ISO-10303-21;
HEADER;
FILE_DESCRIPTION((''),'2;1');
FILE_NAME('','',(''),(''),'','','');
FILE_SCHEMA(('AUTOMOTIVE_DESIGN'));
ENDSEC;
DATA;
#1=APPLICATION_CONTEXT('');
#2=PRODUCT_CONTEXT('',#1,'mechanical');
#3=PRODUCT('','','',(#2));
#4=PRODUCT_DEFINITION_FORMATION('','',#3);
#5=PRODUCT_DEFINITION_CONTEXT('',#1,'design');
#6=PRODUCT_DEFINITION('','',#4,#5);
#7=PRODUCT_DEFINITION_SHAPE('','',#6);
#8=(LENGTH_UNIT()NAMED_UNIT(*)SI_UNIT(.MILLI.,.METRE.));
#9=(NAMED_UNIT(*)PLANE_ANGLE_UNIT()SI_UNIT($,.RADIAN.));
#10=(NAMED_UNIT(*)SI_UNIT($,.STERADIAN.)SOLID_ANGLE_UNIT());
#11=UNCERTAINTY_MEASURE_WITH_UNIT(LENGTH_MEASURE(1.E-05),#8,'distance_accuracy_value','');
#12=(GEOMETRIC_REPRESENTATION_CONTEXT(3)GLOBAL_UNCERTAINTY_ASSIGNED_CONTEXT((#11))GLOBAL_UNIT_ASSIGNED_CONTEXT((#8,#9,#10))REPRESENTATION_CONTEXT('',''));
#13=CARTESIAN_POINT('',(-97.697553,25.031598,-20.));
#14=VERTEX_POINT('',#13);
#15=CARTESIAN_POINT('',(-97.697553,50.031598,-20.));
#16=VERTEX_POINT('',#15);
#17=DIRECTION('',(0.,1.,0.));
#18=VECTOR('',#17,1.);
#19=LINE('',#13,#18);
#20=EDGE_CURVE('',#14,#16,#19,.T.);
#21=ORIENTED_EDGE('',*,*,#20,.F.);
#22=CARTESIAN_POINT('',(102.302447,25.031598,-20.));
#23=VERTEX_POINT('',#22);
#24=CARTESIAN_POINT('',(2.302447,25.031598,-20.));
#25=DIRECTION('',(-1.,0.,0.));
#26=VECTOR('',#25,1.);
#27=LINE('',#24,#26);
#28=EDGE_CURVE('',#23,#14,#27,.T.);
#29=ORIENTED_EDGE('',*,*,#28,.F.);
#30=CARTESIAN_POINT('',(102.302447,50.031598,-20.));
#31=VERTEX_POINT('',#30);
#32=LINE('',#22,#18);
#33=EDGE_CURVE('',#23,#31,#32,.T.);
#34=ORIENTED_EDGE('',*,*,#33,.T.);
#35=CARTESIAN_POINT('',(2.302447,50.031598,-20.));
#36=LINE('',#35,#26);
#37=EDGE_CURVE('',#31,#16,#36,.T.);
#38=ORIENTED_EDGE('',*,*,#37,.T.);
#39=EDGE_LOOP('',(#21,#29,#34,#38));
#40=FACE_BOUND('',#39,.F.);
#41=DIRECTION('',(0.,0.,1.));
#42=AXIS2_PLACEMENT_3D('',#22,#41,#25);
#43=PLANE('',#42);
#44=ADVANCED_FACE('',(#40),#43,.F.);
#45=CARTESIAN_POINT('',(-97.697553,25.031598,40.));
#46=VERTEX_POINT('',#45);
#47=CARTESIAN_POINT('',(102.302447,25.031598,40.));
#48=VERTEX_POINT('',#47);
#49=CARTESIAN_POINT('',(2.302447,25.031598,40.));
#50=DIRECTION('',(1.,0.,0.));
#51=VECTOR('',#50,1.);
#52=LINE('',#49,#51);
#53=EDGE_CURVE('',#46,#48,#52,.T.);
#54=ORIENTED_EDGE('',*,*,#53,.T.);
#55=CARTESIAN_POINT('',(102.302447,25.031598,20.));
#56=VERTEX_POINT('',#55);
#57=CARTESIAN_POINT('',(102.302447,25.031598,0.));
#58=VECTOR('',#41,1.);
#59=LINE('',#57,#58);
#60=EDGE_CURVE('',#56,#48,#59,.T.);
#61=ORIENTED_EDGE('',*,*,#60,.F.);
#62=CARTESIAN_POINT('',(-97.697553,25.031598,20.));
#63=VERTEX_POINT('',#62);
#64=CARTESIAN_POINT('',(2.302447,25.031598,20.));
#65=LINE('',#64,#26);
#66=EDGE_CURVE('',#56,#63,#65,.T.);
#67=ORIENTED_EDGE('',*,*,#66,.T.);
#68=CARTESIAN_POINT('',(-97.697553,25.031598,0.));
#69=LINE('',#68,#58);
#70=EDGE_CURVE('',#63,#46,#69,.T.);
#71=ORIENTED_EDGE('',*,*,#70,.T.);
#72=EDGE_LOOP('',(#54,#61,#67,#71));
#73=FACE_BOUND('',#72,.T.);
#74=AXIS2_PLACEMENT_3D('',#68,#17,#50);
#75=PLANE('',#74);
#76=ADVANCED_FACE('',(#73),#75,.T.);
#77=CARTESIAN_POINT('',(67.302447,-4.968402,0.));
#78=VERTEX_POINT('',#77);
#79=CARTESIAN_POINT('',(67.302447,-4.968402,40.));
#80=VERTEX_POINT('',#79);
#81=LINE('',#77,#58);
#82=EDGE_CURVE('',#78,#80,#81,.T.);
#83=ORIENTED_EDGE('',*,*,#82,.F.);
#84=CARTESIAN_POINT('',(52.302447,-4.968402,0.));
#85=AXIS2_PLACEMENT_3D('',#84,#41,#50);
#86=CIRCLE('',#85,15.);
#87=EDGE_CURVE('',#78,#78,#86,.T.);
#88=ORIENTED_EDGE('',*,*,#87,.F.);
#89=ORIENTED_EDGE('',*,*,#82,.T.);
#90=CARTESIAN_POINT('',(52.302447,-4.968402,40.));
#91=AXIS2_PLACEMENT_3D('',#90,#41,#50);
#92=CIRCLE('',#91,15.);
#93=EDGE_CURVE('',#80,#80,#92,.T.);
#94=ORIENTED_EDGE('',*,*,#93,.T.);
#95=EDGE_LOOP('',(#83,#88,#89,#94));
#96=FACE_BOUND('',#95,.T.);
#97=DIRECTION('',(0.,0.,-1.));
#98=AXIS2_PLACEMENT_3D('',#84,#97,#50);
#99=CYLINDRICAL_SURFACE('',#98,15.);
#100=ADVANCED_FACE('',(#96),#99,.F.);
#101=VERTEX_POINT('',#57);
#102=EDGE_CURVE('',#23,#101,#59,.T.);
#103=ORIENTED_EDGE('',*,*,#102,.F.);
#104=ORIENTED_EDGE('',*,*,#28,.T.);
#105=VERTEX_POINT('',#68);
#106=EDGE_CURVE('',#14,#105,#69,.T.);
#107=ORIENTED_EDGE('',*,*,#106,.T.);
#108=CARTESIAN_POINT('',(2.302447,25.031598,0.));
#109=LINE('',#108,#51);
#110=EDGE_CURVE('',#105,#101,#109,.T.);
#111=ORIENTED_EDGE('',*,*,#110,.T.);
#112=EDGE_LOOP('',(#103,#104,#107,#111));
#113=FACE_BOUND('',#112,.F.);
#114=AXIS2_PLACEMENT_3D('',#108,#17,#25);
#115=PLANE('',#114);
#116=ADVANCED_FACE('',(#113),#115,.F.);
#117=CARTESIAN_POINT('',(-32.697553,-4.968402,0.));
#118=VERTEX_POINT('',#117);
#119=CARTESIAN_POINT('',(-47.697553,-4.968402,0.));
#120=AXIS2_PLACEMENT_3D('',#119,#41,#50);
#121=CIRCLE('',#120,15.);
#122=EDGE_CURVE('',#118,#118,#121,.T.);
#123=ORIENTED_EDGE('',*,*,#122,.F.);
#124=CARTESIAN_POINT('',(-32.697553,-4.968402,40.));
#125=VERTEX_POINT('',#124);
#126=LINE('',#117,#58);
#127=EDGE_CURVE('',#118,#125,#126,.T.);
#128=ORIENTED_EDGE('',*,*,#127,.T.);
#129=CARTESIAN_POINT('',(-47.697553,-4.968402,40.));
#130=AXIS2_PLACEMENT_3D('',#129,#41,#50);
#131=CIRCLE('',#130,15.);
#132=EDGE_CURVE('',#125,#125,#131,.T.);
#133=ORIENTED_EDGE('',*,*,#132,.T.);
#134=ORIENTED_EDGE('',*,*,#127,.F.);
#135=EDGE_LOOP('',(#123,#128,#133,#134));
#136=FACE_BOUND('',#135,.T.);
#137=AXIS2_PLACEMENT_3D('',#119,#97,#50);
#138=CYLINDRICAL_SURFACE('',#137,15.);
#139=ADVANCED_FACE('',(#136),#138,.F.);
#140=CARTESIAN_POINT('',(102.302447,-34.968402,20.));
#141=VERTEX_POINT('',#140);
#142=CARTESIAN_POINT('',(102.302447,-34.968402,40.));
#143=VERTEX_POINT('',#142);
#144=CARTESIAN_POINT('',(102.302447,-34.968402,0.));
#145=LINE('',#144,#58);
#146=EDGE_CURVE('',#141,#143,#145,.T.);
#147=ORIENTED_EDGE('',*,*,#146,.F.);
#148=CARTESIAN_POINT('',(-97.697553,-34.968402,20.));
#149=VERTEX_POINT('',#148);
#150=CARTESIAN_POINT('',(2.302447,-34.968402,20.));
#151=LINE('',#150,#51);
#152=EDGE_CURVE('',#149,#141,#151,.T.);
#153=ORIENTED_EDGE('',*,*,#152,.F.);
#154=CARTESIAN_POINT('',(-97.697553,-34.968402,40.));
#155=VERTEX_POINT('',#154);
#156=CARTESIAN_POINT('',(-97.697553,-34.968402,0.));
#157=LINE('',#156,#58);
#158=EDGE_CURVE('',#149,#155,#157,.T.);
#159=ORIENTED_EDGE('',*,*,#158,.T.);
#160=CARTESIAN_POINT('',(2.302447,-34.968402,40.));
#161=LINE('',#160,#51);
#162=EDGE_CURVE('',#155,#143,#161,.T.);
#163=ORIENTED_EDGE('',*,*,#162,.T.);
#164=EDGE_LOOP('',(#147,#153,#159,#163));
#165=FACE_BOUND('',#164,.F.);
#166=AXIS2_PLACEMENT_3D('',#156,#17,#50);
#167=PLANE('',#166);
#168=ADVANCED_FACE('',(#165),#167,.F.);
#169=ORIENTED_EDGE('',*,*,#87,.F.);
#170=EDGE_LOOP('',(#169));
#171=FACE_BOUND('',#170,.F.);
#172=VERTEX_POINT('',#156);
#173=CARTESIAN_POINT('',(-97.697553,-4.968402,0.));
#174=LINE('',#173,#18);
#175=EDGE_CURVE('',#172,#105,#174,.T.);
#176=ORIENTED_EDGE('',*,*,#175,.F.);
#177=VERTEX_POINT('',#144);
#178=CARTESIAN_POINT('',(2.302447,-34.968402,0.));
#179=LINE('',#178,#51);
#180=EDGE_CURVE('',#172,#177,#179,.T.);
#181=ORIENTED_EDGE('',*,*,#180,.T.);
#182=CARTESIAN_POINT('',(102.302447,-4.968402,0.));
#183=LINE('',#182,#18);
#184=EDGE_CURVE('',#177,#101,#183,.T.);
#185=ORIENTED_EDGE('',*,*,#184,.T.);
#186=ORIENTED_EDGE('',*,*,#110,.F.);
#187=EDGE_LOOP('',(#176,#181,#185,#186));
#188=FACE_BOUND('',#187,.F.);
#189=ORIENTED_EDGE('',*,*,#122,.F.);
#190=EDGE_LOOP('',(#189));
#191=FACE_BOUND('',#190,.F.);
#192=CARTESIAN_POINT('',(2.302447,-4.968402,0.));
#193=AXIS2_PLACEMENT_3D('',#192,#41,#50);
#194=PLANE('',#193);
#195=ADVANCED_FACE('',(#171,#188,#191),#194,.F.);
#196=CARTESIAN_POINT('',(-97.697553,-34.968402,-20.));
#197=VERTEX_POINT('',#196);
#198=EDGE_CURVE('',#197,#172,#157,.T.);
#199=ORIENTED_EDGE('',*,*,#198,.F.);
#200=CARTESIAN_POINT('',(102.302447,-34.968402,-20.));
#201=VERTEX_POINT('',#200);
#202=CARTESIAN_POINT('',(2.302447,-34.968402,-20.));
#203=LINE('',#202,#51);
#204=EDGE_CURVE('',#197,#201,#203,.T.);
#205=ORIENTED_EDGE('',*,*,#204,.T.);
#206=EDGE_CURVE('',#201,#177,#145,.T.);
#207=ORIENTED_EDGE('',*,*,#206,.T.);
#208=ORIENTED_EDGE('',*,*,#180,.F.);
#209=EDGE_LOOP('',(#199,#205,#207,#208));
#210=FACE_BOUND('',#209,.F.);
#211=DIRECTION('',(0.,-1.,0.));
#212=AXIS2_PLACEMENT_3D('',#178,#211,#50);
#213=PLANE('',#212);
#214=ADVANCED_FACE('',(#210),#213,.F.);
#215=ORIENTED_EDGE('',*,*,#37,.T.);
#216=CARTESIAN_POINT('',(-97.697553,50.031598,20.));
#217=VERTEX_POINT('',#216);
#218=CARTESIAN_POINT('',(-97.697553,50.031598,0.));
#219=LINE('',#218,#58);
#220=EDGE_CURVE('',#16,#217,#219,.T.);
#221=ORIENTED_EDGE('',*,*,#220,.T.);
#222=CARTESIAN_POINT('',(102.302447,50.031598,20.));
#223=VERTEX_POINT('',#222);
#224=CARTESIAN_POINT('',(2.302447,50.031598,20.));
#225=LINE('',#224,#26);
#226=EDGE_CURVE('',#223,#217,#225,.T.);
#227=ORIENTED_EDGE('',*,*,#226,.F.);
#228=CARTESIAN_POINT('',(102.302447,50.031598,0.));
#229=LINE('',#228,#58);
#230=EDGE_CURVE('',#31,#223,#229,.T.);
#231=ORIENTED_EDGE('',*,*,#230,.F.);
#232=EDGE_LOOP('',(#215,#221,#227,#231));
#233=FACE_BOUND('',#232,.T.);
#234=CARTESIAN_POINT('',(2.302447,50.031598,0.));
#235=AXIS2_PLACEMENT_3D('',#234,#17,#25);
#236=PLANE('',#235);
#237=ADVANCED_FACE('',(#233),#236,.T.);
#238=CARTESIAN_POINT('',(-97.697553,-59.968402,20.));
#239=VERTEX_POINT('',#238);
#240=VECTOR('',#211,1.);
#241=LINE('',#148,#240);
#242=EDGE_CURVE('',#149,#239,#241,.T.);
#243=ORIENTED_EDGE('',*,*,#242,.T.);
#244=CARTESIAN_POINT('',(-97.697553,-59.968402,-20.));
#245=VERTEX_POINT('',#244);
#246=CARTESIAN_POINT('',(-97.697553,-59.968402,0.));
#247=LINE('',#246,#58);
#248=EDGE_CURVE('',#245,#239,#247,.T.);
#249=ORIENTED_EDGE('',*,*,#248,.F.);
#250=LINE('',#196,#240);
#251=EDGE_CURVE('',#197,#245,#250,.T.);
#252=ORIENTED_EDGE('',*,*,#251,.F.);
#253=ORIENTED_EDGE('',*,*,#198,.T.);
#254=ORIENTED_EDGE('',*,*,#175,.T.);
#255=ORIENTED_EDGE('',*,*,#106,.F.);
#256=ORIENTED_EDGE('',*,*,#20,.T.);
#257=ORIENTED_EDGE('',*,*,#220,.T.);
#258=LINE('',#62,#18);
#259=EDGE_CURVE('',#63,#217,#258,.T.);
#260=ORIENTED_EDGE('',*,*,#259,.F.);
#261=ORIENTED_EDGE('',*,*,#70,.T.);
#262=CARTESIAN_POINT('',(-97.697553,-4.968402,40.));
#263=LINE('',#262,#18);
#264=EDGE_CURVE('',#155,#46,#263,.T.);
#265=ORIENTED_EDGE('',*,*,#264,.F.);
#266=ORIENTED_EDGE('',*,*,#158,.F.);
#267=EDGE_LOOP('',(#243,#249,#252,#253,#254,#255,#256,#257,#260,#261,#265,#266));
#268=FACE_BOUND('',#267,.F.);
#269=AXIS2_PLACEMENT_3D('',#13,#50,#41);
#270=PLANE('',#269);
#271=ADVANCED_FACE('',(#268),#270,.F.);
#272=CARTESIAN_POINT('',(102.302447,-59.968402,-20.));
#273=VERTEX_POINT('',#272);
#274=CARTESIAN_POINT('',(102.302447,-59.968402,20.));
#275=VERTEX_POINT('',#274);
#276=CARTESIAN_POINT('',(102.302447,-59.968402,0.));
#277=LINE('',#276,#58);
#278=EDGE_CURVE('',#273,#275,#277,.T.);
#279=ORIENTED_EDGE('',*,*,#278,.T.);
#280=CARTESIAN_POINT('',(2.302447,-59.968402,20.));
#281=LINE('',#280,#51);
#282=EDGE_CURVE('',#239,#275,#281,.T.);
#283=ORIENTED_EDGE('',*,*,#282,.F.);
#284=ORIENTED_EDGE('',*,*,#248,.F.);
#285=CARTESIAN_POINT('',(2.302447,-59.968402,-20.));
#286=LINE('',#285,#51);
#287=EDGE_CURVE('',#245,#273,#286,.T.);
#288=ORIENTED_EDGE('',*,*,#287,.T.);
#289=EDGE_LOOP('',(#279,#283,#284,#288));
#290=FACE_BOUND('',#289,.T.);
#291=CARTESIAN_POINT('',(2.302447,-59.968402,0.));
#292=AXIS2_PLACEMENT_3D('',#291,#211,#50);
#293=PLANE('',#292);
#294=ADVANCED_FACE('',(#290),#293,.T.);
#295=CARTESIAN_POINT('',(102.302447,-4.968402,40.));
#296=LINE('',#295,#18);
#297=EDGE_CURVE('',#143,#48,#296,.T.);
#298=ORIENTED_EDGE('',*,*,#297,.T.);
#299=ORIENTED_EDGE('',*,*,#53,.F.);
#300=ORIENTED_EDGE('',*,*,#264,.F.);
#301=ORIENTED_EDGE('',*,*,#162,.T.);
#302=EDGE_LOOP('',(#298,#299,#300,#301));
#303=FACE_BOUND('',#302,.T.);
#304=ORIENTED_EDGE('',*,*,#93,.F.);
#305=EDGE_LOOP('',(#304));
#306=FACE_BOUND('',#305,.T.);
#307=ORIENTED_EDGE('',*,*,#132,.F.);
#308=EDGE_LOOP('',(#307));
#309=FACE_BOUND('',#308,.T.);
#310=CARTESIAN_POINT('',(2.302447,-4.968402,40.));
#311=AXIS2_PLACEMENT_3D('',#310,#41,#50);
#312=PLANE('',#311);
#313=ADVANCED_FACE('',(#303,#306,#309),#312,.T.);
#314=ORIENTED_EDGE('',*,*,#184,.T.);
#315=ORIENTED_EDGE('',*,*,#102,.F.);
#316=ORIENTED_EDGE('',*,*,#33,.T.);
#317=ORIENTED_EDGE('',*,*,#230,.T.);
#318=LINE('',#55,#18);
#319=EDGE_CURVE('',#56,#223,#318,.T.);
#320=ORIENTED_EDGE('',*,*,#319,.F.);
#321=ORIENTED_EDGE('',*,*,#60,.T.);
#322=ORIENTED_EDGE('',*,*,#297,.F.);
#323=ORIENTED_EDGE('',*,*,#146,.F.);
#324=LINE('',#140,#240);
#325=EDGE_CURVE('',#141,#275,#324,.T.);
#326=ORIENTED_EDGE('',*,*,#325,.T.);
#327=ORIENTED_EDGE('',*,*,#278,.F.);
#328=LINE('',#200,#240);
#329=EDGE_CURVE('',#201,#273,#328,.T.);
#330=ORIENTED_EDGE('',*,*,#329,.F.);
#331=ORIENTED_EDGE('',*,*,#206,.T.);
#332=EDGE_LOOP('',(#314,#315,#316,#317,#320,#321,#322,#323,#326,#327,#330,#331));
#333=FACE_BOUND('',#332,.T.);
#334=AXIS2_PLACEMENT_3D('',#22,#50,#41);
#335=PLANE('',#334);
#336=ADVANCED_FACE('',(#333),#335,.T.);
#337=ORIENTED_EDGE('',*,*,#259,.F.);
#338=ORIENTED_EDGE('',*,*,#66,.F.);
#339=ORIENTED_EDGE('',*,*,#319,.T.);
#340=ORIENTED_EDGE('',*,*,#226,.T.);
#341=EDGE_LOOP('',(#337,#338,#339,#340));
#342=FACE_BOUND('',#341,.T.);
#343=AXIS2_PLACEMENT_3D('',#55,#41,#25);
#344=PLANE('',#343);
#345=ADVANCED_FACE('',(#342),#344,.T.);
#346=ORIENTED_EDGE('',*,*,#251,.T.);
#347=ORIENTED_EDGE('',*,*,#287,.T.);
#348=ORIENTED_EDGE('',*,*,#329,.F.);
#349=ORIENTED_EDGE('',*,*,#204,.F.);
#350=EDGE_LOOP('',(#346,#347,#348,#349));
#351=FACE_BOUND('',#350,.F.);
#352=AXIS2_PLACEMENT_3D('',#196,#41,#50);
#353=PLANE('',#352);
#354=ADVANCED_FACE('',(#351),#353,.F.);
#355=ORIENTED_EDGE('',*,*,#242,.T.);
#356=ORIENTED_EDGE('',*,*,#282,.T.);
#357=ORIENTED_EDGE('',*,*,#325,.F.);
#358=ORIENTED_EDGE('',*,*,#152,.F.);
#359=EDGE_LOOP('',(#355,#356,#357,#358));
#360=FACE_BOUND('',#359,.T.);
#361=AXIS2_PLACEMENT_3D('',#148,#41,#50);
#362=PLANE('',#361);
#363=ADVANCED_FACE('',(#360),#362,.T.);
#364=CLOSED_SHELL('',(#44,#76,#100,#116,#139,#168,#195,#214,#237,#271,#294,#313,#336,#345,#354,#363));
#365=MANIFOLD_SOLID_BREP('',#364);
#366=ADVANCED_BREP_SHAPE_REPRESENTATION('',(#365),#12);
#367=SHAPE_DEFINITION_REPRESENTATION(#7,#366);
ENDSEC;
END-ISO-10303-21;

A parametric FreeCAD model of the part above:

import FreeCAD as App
import Part
import Sketcher

V = App.Vector

doc = App.newDocument("Part")
body = doc.addObject("PartDesign::Body", "Body")

sketch1 = body.newObject("Sketcher::SketchObject", "Sketch")
sketch1.AttachmentSupport = (doc.getObject("XY_Plane"), [""])
sketch1.MapMode = "FlatFace"
sketch1.addGeometry([
    Part.LineSegment(V(-97.697553, 25.031598, 0), V(-97.697553, -34.968402, 0)),
    Part.LineSegment(V(-97.697553, -34.968402, 0), V(102.302447, -34.968402, 0)),
    Part.LineSegment(V(102.302447, -34.968402, 0), V(102.302447, 25.031598, 0)),
    Part.LineSegment(V(102.302447, 25.031598, 0), V(-97.697553, 25.031598, 0)),
    Part.Circle(V(-47.697553, -4.968402, 0), V(0, 0, 1), 15),
    Part.Circle(V(52.302447, -4.968402, 0), V(0, 0, 1), 15),
], False)
sketch1.addConstraint([
    Sketcher.Constraint("Coincident", 0, 2, 1, 1),
    Sketcher.Constraint("Coincident", 1, 2, 2, 1),
    Sketcher.Constraint("Coincident", 2, 2, 3, 1),
    Sketcher.Constraint("Coincident", 3, 2, 0, 1),
    Sketcher.Constraint("Vertical", 0),
    Sketcher.Constraint("Horizontal", 1),
    Sketcher.Constraint("Vertical", 2),
    Sketcher.Constraint("Horizontal", 3),
    Sketcher.Constraint("Equal", 4, 5),
    Sketcher.Constraint("Horizontal", 4, 3, 5, 3),
    Sketcher.Constraint("Diameter", 4, 30.0),
    Sketcher.Constraint("DistanceX", 1, 1, 1, 2, 200.0),
    Sketcher.Constraint("DistanceY", 0, 2, 0, 1, 60.0),
    Sketcher.Constraint("DistanceX", 4, 3, 5, 3, 100.0),
    Sketcher.Constraint("DistanceX", 0, 2, 4, 3, 50.0),
    Sketcher.Constraint("DistanceY", 0, 2, 4, 3, 30.0),
    Sketcher.Constraint("DistanceY", 0, 2, -1, 1, 34.968402),
    Sketcher.Constraint("DistanceX", 4, 3, -1, 1, 47.697553),
])
pad1 = body.newObject("PartDesign::Pad", "Pad")
pad1.Profile = sketch1
pad1.Length = 40

sketch2 = body.newObject("Sketcher::SketchObject", "Sketch001")
sketch2.AttachmentSupport = (doc.getObject("XZ_Plane"), [""])
sketch2.MapMode = "FlatFace"
sketch2.AttachmentOffset = App.Placement(V(0, 0, 34.968402), App.Rotation())
sketch2.addGeometry([
    Part.LineSegment(V(-97.697553, 20, 0), V(-97.697553, -20, 0)),
    Part.LineSegment(V(-97.697553, -20, 0), V(102.302447, -20, 0)),
    Part.LineSegment(V(102.302447, -20, 0), V(102.302447, 20, 0)),
    Part.LineSegment(V(102.302447, 20, 0), V(-97.697553, 20, 0)),
], False)
sketch2.addConstraint([
    Sketcher.Constraint("Coincident", 0, 2, 1, 1),
    Sketcher.Constraint("Coincident", 1, 2, 2, 1),
    Sketcher.Constraint("Coincident", 2, 2, 3, 1),
    Sketcher.Constraint("Coincident", 3, 2, 0, 1),
    Sketcher.Constraint("Vertical", 0),
    Sketcher.Constraint("Horizontal", 1),
    Sketcher.Constraint("Vertical", 2),
    Sketcher.Constraint("Horizontal", 3),
    Sketcher.Constraint("DistanceX", 1, 1, 1, 2, 200.0),
    Sketcher.Constraint("DistanceY", 0, 2, 0, 1, 40.0),
    Sketcher.Constraint("DistanceY", 0, 2, -1, 1, 20.0),
    Sketcher.Constraint("DistanceX", 0, 2, -1, 1, 97.697553),
])
pad2 = body.newObject("PartDesign::Pad", "Pad001")
pad2.Profile = sketch2
pad2.Length = 25

sketch3 = body.newObject("Sketcher::SketchObject", "Sketch002")
sketch3.AttachmentSupport = (doc.getObject("XZ_Plane"), [""])
sketch3.MapMode = "FlatFace"
sketch3.AttachmentOffset = App.Placement(V(0, 0, -25.031598), App.Rotation())
sketch3.addGeometry([
    Part.LineSegment(V(102.302447, 20, 0), V(102.302447, -20, 0)),
    Part.LineSegment(V(102.302447, -20, 0), V(-97.697553, -20, 0)),
    Part.LineSegment(V(-97.697553, -20, 0), V(-97.697553, 20, 0)),
    Part.LineSegment(V(-97.697553, 20, 0), V(102.302447, 20, 0)),
], False)
sketch3.addConstraint([
    Sketcher.Constraint("Coincident", 0, 2, 1, 1),
    Sketcher.Constraint("Coincident", 1, 2, 2, 1),
    Sketcher.Constraint("Coincident", 2, 2, 3, 1),
    Sketcher.Constraint("Coincident", 3, 2, 0, 1),
    Sketcher.Constraint("Vertical", 0),
    Sketcher.Constraint("Horizontal", 1),
    Sketcher.Constraint("Vertical", 2),
    Sketcher.Constraint("Horizontal", 3),
    Sketcher.Constraint("DistanceX", 1, 2, 1, 1, 200.0),
    Sketcher.Constraint("DistanceY", 0, 2, 0, 1, 40.0),
    Sketcher.Constraint("DistanceY", 0, 2, -1, 1, 20.0),
    Sketcher.Constraint("DistanceX", -1, 1, 0, 2, 102.302447),
])
pad3 = body.newObject("PartDesign::Pad", "Pad002")
pad3.Profile = sketch3
pad3.Length = 25
pad3.Reversed = True

doc.recompute()
